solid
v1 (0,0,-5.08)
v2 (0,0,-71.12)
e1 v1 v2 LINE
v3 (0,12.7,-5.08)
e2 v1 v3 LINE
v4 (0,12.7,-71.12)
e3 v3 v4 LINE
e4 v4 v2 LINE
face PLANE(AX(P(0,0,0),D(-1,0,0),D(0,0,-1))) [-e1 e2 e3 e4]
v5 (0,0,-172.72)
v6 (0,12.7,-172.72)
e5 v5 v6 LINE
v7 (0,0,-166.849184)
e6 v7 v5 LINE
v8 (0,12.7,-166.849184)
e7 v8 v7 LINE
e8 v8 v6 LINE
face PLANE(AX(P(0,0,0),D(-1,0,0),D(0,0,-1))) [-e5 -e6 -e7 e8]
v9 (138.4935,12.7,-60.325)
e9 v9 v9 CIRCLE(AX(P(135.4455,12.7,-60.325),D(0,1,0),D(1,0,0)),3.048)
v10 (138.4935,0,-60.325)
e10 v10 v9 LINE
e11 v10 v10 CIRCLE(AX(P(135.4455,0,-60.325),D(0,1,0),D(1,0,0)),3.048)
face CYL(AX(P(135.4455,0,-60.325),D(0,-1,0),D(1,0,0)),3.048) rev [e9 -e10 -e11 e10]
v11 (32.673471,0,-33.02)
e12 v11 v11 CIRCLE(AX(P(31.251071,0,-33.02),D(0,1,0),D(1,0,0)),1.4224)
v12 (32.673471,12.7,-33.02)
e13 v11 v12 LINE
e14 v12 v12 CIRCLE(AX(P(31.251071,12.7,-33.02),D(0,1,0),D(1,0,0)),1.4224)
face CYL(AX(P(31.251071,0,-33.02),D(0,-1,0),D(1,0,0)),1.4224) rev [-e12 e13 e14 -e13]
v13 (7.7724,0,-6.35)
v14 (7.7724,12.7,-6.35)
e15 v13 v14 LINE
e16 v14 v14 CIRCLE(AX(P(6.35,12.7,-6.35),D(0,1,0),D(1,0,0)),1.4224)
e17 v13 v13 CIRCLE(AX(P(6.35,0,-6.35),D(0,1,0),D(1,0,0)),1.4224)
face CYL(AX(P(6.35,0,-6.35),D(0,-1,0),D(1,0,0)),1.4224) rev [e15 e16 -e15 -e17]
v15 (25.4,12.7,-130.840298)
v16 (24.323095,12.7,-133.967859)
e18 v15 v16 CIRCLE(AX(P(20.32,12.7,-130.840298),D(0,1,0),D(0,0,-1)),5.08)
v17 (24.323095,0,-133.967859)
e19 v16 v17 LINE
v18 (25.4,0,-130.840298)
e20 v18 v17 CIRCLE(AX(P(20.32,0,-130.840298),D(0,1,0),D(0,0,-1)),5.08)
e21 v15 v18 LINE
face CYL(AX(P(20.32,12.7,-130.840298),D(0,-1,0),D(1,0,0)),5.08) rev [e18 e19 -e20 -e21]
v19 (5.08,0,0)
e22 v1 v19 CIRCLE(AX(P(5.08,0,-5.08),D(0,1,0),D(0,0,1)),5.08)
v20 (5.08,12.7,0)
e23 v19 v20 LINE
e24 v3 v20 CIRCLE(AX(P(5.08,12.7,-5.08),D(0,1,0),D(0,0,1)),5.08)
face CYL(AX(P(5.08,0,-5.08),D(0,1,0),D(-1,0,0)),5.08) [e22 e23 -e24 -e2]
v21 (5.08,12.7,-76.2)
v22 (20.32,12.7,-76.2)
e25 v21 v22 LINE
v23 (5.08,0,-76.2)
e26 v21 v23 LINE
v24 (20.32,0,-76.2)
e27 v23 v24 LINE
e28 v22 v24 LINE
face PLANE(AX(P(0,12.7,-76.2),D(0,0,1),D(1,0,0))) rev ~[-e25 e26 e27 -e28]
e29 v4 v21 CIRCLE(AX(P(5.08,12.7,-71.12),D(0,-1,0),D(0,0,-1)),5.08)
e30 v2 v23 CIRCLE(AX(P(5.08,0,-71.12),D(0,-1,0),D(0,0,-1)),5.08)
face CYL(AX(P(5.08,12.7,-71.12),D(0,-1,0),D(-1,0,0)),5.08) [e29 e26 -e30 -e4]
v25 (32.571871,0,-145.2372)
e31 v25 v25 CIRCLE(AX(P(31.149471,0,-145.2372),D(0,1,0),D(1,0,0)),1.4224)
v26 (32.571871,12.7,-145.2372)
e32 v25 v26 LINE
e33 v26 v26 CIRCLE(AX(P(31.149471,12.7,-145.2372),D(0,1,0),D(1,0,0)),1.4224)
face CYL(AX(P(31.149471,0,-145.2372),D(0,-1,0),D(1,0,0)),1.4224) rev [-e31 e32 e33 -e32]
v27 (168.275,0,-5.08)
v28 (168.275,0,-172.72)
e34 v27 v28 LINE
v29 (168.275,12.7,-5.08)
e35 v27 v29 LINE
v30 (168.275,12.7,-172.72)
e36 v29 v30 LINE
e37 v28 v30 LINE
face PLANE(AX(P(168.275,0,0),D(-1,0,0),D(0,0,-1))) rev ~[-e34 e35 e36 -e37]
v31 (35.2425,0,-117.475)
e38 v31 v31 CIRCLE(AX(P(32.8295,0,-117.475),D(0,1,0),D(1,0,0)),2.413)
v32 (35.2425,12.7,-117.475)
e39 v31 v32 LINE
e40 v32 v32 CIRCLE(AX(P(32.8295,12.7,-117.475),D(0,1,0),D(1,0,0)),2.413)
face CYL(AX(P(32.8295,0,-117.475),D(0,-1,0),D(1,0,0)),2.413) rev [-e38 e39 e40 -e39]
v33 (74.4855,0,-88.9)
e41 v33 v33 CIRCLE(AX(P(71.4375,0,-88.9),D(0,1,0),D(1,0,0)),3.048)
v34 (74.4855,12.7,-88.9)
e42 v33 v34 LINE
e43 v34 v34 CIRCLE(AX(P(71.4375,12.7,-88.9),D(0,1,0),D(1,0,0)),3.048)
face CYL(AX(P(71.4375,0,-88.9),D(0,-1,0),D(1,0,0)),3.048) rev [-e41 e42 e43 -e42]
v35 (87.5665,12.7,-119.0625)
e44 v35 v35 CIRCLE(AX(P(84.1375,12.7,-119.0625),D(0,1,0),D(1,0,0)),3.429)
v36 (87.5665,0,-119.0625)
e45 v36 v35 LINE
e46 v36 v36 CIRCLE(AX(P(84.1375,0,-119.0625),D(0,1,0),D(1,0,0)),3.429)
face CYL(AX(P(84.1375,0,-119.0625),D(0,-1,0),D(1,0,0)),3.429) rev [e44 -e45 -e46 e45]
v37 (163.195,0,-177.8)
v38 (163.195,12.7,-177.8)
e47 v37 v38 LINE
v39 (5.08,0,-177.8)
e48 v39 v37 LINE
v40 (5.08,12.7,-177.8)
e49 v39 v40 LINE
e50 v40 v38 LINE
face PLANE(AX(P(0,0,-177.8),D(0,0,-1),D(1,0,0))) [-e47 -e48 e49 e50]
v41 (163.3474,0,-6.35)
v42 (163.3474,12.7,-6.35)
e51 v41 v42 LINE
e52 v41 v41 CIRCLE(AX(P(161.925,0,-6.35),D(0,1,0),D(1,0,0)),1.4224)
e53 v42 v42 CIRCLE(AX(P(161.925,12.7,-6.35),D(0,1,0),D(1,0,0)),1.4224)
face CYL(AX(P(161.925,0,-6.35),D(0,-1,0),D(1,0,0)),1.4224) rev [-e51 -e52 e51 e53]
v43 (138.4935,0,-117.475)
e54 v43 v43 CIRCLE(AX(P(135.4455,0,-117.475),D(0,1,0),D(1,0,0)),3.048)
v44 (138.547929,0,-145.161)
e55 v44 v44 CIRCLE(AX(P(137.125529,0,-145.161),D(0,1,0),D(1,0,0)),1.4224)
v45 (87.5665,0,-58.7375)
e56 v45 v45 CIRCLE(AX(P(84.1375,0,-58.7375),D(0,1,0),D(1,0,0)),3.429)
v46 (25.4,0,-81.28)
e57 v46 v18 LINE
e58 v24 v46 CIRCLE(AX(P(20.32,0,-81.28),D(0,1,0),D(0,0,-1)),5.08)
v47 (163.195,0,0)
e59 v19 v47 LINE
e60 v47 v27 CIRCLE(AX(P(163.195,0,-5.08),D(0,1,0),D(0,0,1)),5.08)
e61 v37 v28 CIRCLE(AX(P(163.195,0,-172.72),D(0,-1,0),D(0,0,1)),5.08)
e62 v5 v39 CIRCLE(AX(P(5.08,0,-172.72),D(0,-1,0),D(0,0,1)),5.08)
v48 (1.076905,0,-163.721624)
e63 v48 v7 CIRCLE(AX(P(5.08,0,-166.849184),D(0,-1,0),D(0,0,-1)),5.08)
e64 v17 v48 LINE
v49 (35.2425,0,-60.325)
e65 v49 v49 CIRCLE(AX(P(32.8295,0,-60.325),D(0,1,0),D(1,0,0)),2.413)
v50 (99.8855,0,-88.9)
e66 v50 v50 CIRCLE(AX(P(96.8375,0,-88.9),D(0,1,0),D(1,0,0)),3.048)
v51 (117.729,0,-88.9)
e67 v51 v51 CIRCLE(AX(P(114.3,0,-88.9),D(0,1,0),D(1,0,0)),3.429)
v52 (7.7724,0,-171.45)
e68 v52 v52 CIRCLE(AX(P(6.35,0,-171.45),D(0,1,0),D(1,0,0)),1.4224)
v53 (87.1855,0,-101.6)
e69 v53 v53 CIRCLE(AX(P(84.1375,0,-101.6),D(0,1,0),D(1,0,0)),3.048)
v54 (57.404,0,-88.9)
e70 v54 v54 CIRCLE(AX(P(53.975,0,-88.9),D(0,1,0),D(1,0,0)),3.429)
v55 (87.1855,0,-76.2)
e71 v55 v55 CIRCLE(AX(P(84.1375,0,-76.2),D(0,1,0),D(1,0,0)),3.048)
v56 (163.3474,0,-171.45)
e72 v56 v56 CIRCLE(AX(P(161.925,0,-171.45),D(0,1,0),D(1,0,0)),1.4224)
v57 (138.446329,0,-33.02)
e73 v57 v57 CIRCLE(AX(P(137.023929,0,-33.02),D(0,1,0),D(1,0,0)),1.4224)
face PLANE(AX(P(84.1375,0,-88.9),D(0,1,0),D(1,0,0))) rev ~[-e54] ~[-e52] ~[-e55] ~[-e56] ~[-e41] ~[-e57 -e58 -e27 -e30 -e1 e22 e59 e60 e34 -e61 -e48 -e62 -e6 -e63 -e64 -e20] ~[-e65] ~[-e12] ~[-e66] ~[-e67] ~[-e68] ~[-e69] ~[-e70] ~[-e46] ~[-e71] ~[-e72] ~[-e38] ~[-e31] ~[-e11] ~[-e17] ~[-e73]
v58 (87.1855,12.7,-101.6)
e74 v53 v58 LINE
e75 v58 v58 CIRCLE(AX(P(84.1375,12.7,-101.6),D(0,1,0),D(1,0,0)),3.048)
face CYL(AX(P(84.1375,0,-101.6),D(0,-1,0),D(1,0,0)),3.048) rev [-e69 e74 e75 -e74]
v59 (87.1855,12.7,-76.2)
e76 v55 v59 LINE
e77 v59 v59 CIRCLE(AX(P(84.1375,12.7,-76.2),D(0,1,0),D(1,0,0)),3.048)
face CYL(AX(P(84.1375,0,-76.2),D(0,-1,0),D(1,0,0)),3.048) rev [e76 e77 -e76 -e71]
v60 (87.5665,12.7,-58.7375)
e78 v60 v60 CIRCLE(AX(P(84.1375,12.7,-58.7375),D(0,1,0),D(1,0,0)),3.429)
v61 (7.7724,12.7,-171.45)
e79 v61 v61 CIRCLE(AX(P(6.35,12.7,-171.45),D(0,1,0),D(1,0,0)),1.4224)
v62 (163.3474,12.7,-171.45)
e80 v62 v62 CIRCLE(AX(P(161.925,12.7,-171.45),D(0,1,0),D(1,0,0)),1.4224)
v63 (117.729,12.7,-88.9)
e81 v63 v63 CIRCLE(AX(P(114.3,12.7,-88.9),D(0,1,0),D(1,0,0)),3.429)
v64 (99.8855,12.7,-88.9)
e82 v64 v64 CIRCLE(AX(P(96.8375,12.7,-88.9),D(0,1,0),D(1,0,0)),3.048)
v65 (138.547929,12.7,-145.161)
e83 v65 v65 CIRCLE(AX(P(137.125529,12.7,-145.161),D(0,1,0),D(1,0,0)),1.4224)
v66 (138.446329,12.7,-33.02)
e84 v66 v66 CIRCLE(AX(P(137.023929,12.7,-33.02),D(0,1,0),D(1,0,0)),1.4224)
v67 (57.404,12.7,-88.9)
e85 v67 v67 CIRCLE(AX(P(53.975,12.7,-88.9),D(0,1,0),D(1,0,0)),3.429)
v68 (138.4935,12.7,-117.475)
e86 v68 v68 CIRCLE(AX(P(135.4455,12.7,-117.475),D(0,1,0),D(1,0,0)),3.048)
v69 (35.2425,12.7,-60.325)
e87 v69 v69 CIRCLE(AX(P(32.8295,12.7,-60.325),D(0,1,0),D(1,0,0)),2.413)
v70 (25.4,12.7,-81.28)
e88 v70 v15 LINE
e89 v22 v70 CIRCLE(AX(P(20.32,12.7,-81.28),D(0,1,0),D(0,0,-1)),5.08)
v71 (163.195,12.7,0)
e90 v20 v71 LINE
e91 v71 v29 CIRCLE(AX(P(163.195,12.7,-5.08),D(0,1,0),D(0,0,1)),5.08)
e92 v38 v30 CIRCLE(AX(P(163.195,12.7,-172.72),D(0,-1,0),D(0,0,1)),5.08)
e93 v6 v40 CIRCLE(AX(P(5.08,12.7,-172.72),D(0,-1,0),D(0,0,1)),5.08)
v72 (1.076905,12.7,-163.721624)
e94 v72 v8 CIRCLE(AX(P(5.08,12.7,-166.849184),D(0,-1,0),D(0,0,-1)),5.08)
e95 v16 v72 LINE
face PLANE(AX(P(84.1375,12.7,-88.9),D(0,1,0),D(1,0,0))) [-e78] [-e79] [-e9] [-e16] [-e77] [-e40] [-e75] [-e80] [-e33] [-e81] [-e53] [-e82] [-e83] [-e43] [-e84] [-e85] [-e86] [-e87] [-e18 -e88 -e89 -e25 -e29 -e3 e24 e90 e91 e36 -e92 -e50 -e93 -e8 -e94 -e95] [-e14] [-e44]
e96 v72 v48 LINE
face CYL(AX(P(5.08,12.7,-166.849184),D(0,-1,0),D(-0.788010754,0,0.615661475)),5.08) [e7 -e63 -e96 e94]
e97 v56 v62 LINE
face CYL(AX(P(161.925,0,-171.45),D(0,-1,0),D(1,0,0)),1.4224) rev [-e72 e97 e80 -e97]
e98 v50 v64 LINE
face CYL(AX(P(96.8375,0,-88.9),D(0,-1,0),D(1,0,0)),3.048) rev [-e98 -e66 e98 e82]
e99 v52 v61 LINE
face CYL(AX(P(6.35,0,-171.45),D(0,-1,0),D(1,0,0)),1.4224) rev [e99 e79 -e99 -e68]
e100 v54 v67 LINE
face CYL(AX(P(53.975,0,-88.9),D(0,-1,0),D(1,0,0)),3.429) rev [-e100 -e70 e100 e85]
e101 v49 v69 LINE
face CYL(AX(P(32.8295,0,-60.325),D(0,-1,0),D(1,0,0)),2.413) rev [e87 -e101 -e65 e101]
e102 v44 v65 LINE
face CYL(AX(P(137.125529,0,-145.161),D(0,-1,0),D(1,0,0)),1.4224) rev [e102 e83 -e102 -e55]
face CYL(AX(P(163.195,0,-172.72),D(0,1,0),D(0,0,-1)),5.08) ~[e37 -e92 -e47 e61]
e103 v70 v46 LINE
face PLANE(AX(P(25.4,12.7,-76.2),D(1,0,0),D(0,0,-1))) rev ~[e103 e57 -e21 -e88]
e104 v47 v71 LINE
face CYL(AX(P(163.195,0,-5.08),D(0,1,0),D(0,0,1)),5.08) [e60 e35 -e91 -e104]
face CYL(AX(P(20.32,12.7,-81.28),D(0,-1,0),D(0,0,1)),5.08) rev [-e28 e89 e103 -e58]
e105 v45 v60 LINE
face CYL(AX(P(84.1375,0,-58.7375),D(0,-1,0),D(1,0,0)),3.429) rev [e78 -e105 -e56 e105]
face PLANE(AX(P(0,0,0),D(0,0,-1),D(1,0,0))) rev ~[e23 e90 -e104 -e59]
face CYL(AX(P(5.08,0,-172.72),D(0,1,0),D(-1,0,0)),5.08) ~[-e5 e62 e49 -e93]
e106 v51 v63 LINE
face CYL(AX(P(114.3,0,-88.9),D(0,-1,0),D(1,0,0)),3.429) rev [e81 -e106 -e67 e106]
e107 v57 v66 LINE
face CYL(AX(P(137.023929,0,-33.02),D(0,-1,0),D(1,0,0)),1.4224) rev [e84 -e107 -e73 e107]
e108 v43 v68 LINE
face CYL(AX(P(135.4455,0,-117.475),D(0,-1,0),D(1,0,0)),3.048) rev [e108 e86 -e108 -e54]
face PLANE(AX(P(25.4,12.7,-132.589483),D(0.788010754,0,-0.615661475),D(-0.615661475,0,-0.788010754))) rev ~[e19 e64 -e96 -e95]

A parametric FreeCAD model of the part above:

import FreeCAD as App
import Part
import Sketcher

V = App.Vector
Q = App.Units.Quantity


def edges_at(feature, points):
    """Names of the edges that pass closest to the given points."""
    edges = feature.Shape.Edges
    near = lambda p: min(range(len(edges)), key=lambda i: edges[i].distToShape(Part.Vertex(*p))[0])
    return sorted({f"Edge{near(p) + 1}" for p in points})

doc = App.newDocument("Part")
params = doc.addObject("Spreadsheet::Sheet", "Params")
for row, (alias, value) in enumerate([
    ("sketch1_diameter", "0.19 in"),
    ("sketch1_diameter2", "0.27 in"),
    ("sketch1_diameter3", "0.24 in"),
    ("sketch1_height", "7 in"),
    ("sketch1_diameter4", "0.112 in"),
    ("pad1_length", "0.5 in"),
    ("sketch2_width", "1 in"),
    ("sketch2_height", "3.5 in"),
    ("fillet_radius", "0.2 in"),
], start=1):
    params.set(f"A{row}", alias)
    params.set(f"B{row}", "=" + value)
    params.setAlias(f"B{row}", alias)

body = doc.addObject("PartDesign::Body", "Body")

sketch1 = body.newObject("Sketcher::SketchObject", "Sketch")
sketch1.AttachmentSupport = (doc.getObject("XZ_Plane"), [""])
sketch1.MapMode = "FlatFace"
sketch1.addGeometry([
    Part.LineSegment(V(0, -177.8, 0), V(0, 0, 0)),
    Part.LineSegment(V(0, 0, 0), V(168.3, 0, 0)),
    Part.LineSegment(V(168.3, 0, 0), V(168.3, -177.8, 0)),
    Part.LineSegment(V(168.3, -177.8, 0), V(0, -177.8, 0)),
    Part.Circle(V(6.3, -6.3, 0), V(0, 0, 1), 1.4),
    Part.Circle(V(31.3, -33, 0), V(0, 0, 1), 1.4),
    Part.Circle(V(32.8, -60.3, 0), V(0, 0, 1), 2.4),
    Part.Circle(V(161.9, -6.3, 0), V(0, 0, 1), 1.4),
    Part.Circle(V(137, -33, 0), V(0, 0, 1), 1.4),
    Part.Circle(V(84.1, -58.7, 0), V(0, 0, 1), 3.4),
    Part.Circle(V(84.1, -76.2, 0), V(0, 0, 1), 3),
    Part.Circle(V(135.4, -60.3, 0), V(0, 0, 1), 3),
    Part.Circle(V(32.8, -117.5, 0), V(0, 0, 1), 2.4),
    Part.Circle(V(54, -88.9, 0), V(0, 0, 1), 3.4),
    Part.Circle(V(71.4, -88.9, 0), V(0, 0, 1), 3),
    Part.Circle(V(31.1, -145.2, 0), V(0, 0, 1), 1.4),
    Part.Circle(V(6.3, -171.4, 0), V(0, 0, 1), 1.4),
    Part.Circle(V(96.8, -88.9, 0), V(0, 0, 1), 3),
    Part.Circle(V(84.1, -101.6, 0), V(0, 0, 1), 3),
    Part.Circle(V(114.3, -88.9, 0), V(0, 0, 1), 3.4),
    Part.Circle(V(84.1, -119.1, 0), V(0, 0, 1), 3.4),
    Part.Circle(V(135.4, -117.5, 0), V(0, 0, 1), 3),
    Part.Circle(V(137.1, -145.2, 0), V(0, 0, 1), 1.4),
    Part.Circle(V(161.9, -171.4, 0), V(0, 0, 1), 1.4),
], False)
sketch1.addConstraint([
    Sketcher.Constraint("Coincident", 0, 2, 1, 1),
    Sketcher.Constraint("Coincident", 1, 2, 2, 1),
    Sketcher.Constraint("Coincident", 2, 2, 3, 1),
    Sketcher.Constraint("Coincident", 3, 2, 0, 1),
    Sketcher.Constraint("Vertical", 0),
    Sketcher.Constraint("Horizontal", 1),
    Sketcher.Constraint("Vertical", 2),
    Sketcher.Constraint("Horizontal", 3),
    Sketcher.Constraint("Coincident", 0, 2, -1, 1),
    Sketcher.Constraint("Equal", 4, 5),
    Sketcher.Constraint("Equal", 5, 7),
    Sketcher.Constraint("Equal", 7, 8),
    Sketcher.Constraint("Equal", 10, 11),
    Sketcher.Constraint("Equal", 6, 12),
    Sketcher.Constraint("Equal", 9, 13),
    Sketcher.Constraint("Equal", 11, 14),
    Sketcher.Constraint("Equal", 8, 15),
    Sketcher.Constraint("Equal", 15, 16),
    Sketcher.Constraint("Equal", 14, 17),
    Sketcher.Constraint("Equal", 17, 18),
    Sketcher.Constraint("Equal", 13, 19),
    Sketcher.Constraint("Equal", 19, 20),
    Sketcher.Constraint("Equal", 18, 21),
    Sketcher.Constraint("Equal", 16, 22),
    Sketcher.Constraint("Equal", 22, 23),
    Sketcher.Constraint("Horizontal", 4, 3, 7, 3),
    Sketcher.Constraint("Horizontal", 5, 3, 8, 3),
    Sketcher.Constraint("Horizontal", 6, 3, 11, 3),
    Sketcher.Constraint("Horizontal", 13, 3, 14, 3),
    Sketcher.Constraint("Horizontal", 14, 3, 17, 3),
    Sketcher.Constraint("Horizontal", 17, 3, 19, 3),
    Sketcher.Constraint("Horizontal", 12, 3, 21, 3),
    Sketcher.Constraint("Horizontal", 16, 3, 23, 3),
    Sketcher.Constraint("Vertical", 9, 3, 10, 3),
    Sketcher.Constraint("Vertical", 6, 3, 12, 3),
    Sketcher.Constraint("Vertical", 4, 3, 16, 3),
    Sketcher.Constraint("Vertical", 10, 3, 18, 3),
    Sketcher.Constraint("Vertical", 18, 3, 20, 3),
    Sketcher.Constraint("Vertical", 11, 3, 21, 3),
    Sketcher.Constraint("Vertical", 7, 3, 23, 3),
    Sketcher.Constraint("Diameter", 6, Q("0.19 in")),
    Sketcher.Constraint("Diameter", 9, Q("0.27 in")),
    Sketcher.Constraint("Diameter", 10, Q("0.24 in")),
    Sketcher.Constraint("DistanceY", 0, 1, 0, 2, Q("7 in")),
    Sketcher.Constraint("Diameter", 4, Q("0.112 in")),
    Sketcher.Constraint("DistanceY", 10, 3, -1, 1, Q("3 in")),
    Sketcher.Constraint("DistanceY", 18, 3, -1, 1, Q("4 in")),
    Sketcher.Constraint("DistanceX", 14, 3, 17, 3, Q("1 in")),
    Sketcher.Constraint("DistanceY", 5, 3, -1, 1, Q("1.3 in")),
    Sketcher.Constraint("DistanceY", 13, 3, -1, 1, Q("3.5 in")),
    Sketcher.Constraint("DistanceX", -1, 1, 19, 3, Q("4.5 in")),
    Sketcher.Constraint("DistanceX", 14, 3, 10, 3, Q("0.5 in")),
    Sketcher.Constraint("DistanceX", 1, 1, 1, 2, Q("6.625 in")),
    Sketcher.Constraint("DistanceX", -1, 1, 4, 3, Q("0.25 in")),
    Sketcher.Constraint("DistanceY", 4, 3, -1, 1, Q("0.25 in")),
    Sketcher.Constraint("DistanceY", 16, 3, -1, 1, Q("6.75 in")),
    Sketcher.Constraint("DistanceX", 6, 3, 9, 3, Q("2.02 in")),
    Sketcher.Constraint("DistanceX", 9, 3, 11, 3, Q("2.02 in")),
    Sketcher.Constraint("DistanceY", 12, 3, 6, 3, Q("2.25 in")),
    Sketcher.Constraint("DistanceY", 22, 3, 21, 3, Q("1.09 in")),
    Sketcher.Constraint("DistanceX", 7, 3, 1, 2, Q("0.25 in")),
    Sketcher.Constraint("DistanceY", 6, 3, -1, 1, Q("2.375 in")),
    Sketcher.Constraint("DistanceX", -1, 1, 9, 3, Q("3.3125 in")),
    Sketcher.Constraint("DistanceY", 9, 3, -1, 1, Q("2.3125 in")),
    Sketcher.Constraint("DistanceX", -1, 1, 13, 3, Q("2.125 in")),
    Sketcher.Constraint("DistanceY", 15, 3, -1, 1, Q("5.718 in")),
    Sketcher.Constraint("DistanceY", 20, 3, -1, 1, Q("4.6875 in")),
    Sketcher.Constraint("DistanceX", -1, 1, 5, 3, 31.251071),
    Sketcher.Constraint("DistanceX", -1, 1, 8, 3, 137.023929),
    Sketcher.Constraint("DistanceX", -1, 1, 15, 3, 31.149471),
    Sketcher.Constraint("DistanceX", -1, 1, 22, 3, 137.125529),
])
sketch1.setExpression("Constraints[40]", "Params.sketch1_diameter")
sketch1.setExpression("Constraints[41]", "Params.sketch1_diameter2")
sketch1.setExpression("Constraints[42]", "Params.sketch1_diameter3")
sketch1.setExpression("Constraints[43]", "Params.sketch1_height")
sketch1.setExpression("Constraints[44]", "Params.sketch1_diameter4")
pad1 = body.newObject("PartDesign::Pad", "Pad")
pad1.Profile = sketch1
pad1.setExpression("Length", "Params.pad1_length")
pad1.Reversed = True

sketch2 = body.newObject("Sketcher::SketchObject", "Sketch001")
sketch2.AttachmentSupport = (doc.getObject("XZ_Plane"), [""])
sketch2.MapMode = "FlatFace"
sketch2.AttachmentOffset = App.Placement(V(0, 0, -0.5 * 25.4), App.Rotation())
sketch2.addGeometry([
    Part.LineSegment(V(0, -165, 0), V(0, -76, 0)),
    Part.LineSegment(V(0, -76, 0), V(25, -76, 0)),
    Part.LineSegment(V(25, -76, 0), V(25, -133, 0)),
    Part.LineSegment(V(25, -133, 0), V(0, -165, 0)),
], False)
sketch2.addConstraint([
    Sketcher.Constraint("Coincident", 0, 2, 1, 1),
    Sketcher.Constraint("Coincident", 1, 2, 2, 1),
    Sketcher.Constraint("Coincident", 2, 2, 3, 1),
    Sketcher.Constraint("Coincident", 3, 2, 0, 1),
    Sketcher.Constraint("Vertical", 0),
    Sketcher.Constraint("Horizontal", 1),
    Sketcher.Constraint("Vertical", 2),
    Sketcher.Constraint("PointOnObject", 0, 2, -2),
    Sketcher.Constraint("DistanceX", 1, 1, 1, 2, Q("1 in")),
    Sketcher.Constraint("DistanceY", 0, 1, 0, 2, Q("3.5 in")),
    Sketcher.Constraint("DistanceY", 0, 2, -1, 1, Q("3 in")),
    Sketcher.Constraint("Angle", 3, Q("-128 deg")),
])
sketch2.setExpression("Constraints[8]", "Params.sketch2_width")
sketch2.setExpression("Constraints[9]", "Params.sketch2_height")
pocket1 = body.newObject("PartDesign::Pocket", "Pocket")
pocket1.Profile = sketch2
pocket1.Type = "ThroughAll"
pocket1.Midplane = True
doc.recompute()

fillet = body.newObject("PartDesign::Fillet", "Fillet")
fillet.Base = (pocket1, edges_at(pocket1, [
    (0, 6.35, -165.1),
    (25.4, 6.35, -132.589),
    (25.4, 6.35, -76.2),
    (0, 6.35, -76.2),
    (0, 6.35, -177.8),
    (168.275, 6.35, -177.8),
    (168.275, 6.35, 0),
    (0, 6.35, 0),
]))
fillet.setExpression("Radius", "Params.fillet_radius")

doc.recompute()
